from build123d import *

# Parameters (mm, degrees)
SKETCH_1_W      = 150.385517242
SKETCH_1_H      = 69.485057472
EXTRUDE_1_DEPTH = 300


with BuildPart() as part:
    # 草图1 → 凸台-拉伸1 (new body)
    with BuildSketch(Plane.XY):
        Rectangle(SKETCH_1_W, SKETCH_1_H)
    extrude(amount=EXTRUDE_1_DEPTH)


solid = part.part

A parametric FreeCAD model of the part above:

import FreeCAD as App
import Part
import Sketcher
Q = App.Units.Quantity

doc = App.newDocument("Part")
body = doc.addObject("PartDesign::Body", "Body")

# Sketch on XY plane
sketch1 = doc.addObject("Sketcher::SketchObject", "Sketch")
body.addObject(sketch1)
sketch1.AttachmentSupport = (doc.XY_Plane, [""])
sketch1.MapMode = "FlatFace"
sketch1.addGeometry(Part.LineSegment(App.Vector(-75, 35, 0), App.Vector(-75, -35, 0)), False)
sketch1.addGeometry(Part.LineSegment(App.Vector(-75, -35, 0), App.Vector(75, -35, 0)), False)
sketch1.addGeometry(Part.LineSegment(App.Vector(75, -35, 0), App.Vector(75, 35, 0)), False)
sketch1.addGeometry(Part.LineSegment(App.Vector(75, 35, 0), App.Vector(-75, 35, 0)), False)
sketch1.addConstraint(Sketcher.Constraint("Coincident", 0, 2, 1, 1))
sketch1.addConstraint(Sketcher.Constraint("Coincident", 1, 2, 2, 1))
sketch1.addConstraint(Sketcher.Constraint("Coincident", 2, 2, 3, 1))
sketch1.addConstraint(Sketcher.Constraint("Coincident", 3, 2, 0, 1))
sketch1.addConstraint(Sketcher.Constraint("Vertical", 0))
sketch1.addConstraint(Sketcher.Constraint("Horizontal", 1))
sketch1.addConstraint(Sketcher.Constraint("Vertical", 2))
sketch1.addConstraint(Sketcher.Constraint("Horizontal", 3))
sketch1.addConstraint(Sketcher.Constraint("Symmetric", 0, 2, 2, 2, -1, 1))
sketch1.addConstraint(Sketcher.Constraint("DistanceX", 1, 1, 1, 2, Q("150.385517 mm")))
sketch1.addConstraint(Sketcher.Constraint("DistanceY", 0, 2, 0, 1, Q("69.485057 mm")))
pad1 = doc.addObject("PartDesign::Pad", "Pad")
body.addObject(pad1)
pad1.Profile = sketch1
pad1.Length = 300

doc.recompute()
